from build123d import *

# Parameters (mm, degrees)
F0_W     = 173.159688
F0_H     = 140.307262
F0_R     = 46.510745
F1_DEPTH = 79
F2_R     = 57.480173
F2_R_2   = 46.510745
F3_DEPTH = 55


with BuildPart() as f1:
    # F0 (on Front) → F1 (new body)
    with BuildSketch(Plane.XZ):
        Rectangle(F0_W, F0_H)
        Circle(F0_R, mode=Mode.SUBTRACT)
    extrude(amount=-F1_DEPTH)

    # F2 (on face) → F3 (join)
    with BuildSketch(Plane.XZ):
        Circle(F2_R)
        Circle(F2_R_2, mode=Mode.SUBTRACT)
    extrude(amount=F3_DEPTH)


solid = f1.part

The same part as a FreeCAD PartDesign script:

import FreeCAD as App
import Part
import Sketcher

V = App.Vector
Q = App.Units.Quantity

doc = App.newDocument("Part")
body = doc.addObject("PartDesign::Body", "Body")

sketch1 = doc.addObject("Sketcher::SketchObject", "Sketch")
body.addObject(sketch1)
sketch1.AttachmentSupport = (doc.XZ_Plane, [""])
sketch1.MapMode = "FlatFace"
sketch1.addGeometry([
    Part.LineSegment(V(-87, 70, 0), V(-87, -70, 0)),
    Part.LineSegment(V(-87, -70, 0), V(87, -70, 0)),
    Part.LineSegment(V(87, -70, 0), V(87, 70, 0)),
    Part.LineSegment(V(87, 70, 0), V(-87, 70, 0)),
    Part.Circle(V(0, 0, 0), V(0, 0, 1), 47),
], False)
sketch1.addConstraint([
    Sketcher.Constraint("Coincident", 0, 2, 1, 1),
    Sketcher.Constraint("Coincident", 1, 2, 2, 1),
    Sketcher.Constraint("Coincident", 2, 2, 3, 1),
    Sketcher.Constraint("Coincident", 3, 2, 0, 1),
    Sketcher.Constraint("Vertical", 0),
    Sketcher.Constraint("Horizontal", 1),
    Sketcher.Constraint("Vertical", 2),
    Sketcher.Constraint("Horizontal", 3),
    Sketcher.Constraint("Coincident", 4, 3, -1, 1),
    Sketcher.Constraint("Symmetric", 0, 2, 2, 2, -1, 1),
    Sketcher.Constraint("Diameter", 4, Q("93.02149 mm")),
    Sketcher.Constraint("DistanceY", 0, 2, 0, 1, Q("140.307262 mm")),
    Sketcher.Constraint("DistanceX", 1, 1, 1, 2, Q("173.159688 mm")),
])
pad1 = doc.addObject("PartDesign::Pad", "Pad")
body.addObject(pad1)
pad1.Profile = sketch1
pad1.Length = 79
pad1.Reversed = True

sketch2 = doc.addObject("Sketcher::SketchObject", "Sketch001")
body.addObject(sketch2)
sketch2.AttachmentSupport = (doc.XZ_Plane, [""])
sketch2.MapMode = "FlatFace"
sketch2.addGeometry([
    Part.Circle(V(0, 0, 0), V(0, 0, 1), 57),
    Part.Circle(V(0, 0, 0), V(0, 0, 1), 47),
], False)
sketch2.addConstraint([
    Sketcher.Constraint("Coincident", 0, 3, -1, 1),
    Sketcher.Constraint("Coincident", 1, 3, -1, 1),
    Sketcher.Constraint("Diameter", 1, Q("93.02149 mm")),
    Sketcher.Constraint("Diameter", 0, Q("114.960346 mm")),
])
pad2 = doc.addObject("PartDesign::Pad", "Pad001")
body.addObject(pad2)
pad2.Profile = sketch2
pad2.Length = 55

doc.recompute()
